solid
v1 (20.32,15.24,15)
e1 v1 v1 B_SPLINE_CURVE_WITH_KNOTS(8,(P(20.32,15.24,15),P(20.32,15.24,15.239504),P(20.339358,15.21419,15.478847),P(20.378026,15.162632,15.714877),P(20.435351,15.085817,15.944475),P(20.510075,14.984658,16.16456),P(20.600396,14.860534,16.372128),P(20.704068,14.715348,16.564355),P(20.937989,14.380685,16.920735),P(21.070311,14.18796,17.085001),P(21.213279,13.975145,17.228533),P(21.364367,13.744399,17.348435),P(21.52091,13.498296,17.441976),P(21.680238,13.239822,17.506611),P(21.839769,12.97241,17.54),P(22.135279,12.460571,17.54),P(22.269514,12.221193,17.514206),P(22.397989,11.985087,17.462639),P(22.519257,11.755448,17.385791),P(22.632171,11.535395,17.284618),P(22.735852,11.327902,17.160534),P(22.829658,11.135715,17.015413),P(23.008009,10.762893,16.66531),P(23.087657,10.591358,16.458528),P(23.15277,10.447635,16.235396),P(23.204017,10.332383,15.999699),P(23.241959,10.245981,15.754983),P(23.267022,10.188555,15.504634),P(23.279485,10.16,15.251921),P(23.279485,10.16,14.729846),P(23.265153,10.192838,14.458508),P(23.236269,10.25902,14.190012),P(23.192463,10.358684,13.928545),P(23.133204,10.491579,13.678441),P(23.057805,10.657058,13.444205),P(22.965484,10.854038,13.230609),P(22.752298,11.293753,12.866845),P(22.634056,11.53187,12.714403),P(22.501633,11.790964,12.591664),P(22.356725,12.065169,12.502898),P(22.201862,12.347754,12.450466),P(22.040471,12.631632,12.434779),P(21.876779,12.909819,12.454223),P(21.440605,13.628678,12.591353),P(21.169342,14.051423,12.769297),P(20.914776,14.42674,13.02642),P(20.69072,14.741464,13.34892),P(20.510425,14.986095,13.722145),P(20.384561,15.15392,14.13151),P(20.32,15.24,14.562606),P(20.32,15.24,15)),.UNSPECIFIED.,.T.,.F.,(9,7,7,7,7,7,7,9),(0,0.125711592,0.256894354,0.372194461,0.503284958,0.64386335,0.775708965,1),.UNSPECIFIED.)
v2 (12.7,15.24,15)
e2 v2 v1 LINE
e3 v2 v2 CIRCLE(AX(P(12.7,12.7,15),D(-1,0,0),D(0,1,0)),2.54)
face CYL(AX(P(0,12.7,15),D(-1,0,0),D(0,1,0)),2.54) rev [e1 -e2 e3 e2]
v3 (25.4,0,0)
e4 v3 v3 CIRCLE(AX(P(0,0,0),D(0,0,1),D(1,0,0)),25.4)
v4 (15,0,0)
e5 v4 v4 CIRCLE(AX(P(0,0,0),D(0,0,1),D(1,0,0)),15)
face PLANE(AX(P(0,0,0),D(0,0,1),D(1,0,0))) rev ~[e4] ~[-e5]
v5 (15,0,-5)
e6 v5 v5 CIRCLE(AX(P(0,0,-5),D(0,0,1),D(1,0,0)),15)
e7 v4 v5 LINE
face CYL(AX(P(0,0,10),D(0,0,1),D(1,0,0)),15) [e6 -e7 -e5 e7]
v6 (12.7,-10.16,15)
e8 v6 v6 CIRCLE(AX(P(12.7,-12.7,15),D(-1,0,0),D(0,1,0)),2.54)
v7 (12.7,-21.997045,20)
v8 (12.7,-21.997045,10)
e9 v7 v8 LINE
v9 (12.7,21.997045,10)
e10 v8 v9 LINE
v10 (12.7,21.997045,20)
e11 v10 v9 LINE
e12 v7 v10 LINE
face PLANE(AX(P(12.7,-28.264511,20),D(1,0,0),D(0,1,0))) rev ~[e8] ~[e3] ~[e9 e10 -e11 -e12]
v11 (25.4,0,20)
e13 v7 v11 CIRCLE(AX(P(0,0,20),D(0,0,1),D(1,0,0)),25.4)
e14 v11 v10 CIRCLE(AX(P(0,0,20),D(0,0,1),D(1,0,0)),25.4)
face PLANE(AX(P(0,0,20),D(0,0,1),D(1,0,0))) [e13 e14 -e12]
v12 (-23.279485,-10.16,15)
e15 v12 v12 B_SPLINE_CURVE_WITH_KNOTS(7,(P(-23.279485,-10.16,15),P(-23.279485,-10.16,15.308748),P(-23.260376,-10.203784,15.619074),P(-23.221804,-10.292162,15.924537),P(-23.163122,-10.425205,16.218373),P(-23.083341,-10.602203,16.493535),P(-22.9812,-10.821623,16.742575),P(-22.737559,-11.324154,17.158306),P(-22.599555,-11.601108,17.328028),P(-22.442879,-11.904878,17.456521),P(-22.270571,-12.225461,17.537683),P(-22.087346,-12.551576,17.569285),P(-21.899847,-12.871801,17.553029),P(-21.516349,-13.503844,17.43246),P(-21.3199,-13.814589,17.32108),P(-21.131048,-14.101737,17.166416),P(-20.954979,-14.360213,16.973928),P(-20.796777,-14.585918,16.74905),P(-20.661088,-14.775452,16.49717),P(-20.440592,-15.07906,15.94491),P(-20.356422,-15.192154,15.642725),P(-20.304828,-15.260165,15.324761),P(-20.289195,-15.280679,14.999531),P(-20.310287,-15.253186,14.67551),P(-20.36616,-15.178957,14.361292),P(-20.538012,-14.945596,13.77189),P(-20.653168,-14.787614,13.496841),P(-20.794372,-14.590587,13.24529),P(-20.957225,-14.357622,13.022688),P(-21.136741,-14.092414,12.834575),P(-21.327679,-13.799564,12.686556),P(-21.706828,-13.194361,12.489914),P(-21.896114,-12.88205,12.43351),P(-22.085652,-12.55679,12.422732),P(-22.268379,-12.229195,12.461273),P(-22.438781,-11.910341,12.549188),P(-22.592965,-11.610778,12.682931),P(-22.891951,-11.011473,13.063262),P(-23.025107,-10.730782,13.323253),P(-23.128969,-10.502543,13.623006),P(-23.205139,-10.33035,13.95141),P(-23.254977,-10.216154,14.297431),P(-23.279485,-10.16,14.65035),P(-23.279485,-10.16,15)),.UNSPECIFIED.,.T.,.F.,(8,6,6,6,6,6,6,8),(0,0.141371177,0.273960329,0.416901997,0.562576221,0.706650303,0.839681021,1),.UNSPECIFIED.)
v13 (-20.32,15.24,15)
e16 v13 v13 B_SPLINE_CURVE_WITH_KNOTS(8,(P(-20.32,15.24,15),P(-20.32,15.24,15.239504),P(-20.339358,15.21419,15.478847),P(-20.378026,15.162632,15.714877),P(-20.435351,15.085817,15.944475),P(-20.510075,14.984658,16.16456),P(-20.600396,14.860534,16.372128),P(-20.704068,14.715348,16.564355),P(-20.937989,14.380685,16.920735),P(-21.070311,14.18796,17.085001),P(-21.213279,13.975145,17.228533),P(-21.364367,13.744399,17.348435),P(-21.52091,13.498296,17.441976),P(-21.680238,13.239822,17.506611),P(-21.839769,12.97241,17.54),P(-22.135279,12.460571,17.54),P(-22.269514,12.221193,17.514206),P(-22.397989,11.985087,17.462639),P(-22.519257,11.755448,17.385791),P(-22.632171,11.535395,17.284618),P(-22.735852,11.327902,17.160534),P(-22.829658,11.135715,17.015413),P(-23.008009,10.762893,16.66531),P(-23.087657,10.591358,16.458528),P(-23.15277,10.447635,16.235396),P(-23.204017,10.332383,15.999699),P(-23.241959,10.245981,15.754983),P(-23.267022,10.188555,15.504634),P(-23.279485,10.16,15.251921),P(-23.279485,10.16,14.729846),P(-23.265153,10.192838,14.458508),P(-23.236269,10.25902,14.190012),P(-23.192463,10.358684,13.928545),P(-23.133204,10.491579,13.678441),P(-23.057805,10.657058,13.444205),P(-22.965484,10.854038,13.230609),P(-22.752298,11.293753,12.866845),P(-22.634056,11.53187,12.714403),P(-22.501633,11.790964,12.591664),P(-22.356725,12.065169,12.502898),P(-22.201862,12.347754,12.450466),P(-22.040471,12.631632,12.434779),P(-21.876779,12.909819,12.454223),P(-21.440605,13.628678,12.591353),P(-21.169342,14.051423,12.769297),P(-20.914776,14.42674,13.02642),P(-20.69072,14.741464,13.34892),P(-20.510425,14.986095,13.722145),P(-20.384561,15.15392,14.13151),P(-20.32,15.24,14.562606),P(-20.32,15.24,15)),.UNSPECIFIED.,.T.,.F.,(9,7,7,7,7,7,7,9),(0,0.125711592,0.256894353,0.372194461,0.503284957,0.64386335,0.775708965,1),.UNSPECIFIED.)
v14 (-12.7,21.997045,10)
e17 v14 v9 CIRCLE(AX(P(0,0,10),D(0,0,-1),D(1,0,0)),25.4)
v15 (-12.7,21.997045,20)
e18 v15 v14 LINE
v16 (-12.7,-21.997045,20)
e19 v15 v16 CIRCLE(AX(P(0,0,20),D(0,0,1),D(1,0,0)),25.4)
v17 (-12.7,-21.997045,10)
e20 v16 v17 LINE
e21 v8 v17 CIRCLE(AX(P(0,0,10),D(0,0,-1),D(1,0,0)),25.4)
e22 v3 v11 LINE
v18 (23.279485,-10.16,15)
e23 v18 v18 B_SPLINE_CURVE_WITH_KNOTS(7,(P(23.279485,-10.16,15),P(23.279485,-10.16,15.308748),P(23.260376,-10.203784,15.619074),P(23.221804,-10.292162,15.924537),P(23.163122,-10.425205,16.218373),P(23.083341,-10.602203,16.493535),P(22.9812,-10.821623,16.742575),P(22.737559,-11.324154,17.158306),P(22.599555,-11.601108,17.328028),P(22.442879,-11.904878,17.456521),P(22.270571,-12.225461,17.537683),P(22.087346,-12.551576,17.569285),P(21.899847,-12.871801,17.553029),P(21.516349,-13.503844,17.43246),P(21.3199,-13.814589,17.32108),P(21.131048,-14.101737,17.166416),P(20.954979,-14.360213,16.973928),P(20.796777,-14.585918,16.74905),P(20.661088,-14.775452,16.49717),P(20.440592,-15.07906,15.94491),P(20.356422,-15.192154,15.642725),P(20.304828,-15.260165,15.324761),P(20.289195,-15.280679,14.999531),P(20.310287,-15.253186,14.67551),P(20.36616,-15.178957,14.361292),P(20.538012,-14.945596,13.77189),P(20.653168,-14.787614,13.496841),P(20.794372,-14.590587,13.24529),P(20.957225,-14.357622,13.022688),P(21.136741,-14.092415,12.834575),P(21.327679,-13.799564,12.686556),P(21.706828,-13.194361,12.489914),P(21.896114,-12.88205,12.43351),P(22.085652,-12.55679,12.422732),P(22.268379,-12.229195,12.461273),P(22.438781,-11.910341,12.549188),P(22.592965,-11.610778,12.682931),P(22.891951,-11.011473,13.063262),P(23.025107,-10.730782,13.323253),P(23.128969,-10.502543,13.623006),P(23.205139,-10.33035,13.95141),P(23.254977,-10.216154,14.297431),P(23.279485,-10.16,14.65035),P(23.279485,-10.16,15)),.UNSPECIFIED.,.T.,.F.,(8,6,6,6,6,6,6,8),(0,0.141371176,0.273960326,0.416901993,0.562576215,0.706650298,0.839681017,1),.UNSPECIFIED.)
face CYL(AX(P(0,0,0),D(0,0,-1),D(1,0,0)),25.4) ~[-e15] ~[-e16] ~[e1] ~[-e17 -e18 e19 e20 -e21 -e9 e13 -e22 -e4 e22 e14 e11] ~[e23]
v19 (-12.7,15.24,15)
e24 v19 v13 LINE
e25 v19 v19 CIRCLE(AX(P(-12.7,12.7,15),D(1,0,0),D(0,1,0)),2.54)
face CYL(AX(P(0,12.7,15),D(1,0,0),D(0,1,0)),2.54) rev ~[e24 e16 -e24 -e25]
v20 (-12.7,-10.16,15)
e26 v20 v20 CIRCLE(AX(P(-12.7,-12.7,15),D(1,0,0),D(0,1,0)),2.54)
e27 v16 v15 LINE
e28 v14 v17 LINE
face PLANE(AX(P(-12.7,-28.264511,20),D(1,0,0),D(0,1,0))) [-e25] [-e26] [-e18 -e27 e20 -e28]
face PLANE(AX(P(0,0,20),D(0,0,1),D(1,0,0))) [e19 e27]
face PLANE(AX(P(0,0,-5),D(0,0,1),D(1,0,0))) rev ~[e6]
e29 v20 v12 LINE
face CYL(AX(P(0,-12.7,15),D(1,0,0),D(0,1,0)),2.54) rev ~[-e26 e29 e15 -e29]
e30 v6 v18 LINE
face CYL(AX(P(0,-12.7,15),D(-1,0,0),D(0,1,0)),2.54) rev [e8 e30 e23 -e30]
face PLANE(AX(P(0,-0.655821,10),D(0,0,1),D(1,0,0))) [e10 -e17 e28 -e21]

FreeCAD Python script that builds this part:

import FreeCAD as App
import Part
import Sketcher
from FreeCAD import Vector

doc = App.newDocument("Part")
body = doc.addObject("PartDesign::Body", "Body")

# Sketch on XY plane
sketch1 = doc.addObject("Sketcher::SketchObject", "Sketch")
body.addObject(sketch1)
sketch1.AttachmentSupport = (doc.XY_Plane, [""])
sketch1.MapMode = "FlatFace"
sketch1.addGeometry(Part.Circle(Vector(0, 0, 0), Vector(0, 0, 1), 25), False)
sketch1.addConstraint([
    Sketcher.Constraint("Coincident", 0, 3, -1, 1),
    Sketcher.Constraint("Diameter", 0, 50.8),
])
pad1 = doc.addObject("PartDesign::Pad", "Pad")
body.addObject(pad1)
pad1.Profile = sketch1
pad1.Length = 20

# Sketch on XY plane
sketch2 = doc.addObject("Sketcher::SketchObject", "Sketch001")
body.addObject(sketch2)
sketch2.AttachmentSupport = (doc.XY_Plane, [""])
sketch2.MapMode = "FlatFace"
sketch2.AttachmentOffset = App.Placement(Vector(0, 0, 20), App.Rotation())
sketch2.addGeometry([
    Part.LineSegment(Vector(-13, 27, 0), Vector(-13, -28, 0)),
    Part.LineSegment(Vector(-13, -28, 0), Vector(13, -28, 0)),
    Part.LineSegment(Vector(13, -28, 0), Vector(13, 27, 0)),
    Part.LineSegment(Vector(13, 27, 0), Vector(-13, 27, 0)),
], False)
sketch2.addConstraint([
    Sketcher.Constraint("Coincident", 0, 2, 1, 1),
    Sketcher.Constraint("Coincident", 1, 2, 2, 1),
    Sketcher.Constraint("Coincident", 2, 2, 3, 1),
    Sketcher.Constraint("Coincident", 3, 2, 0, 1),
    Sketcher.Constraint("Vertical", 0),
    Sketcher.Constraint("Horizontal", 1),
    Sketcher.Constraint("Vertical", 2),
    Sketcher.Constraint("Horizontal", 3),
    Sketcher.Constraint("DistanceX", 1, 1, 1, 2, 25.4),
    Sketcher.Constraint("DistanceX", 0, 2, -1, 1, 12.7),
    Sketcher.Constraint("DistanceY", 0, 2, 0, 1, 55.217381),
    Sketcher.Constraint("DistanceY", 0, 2, -1, 1, 28.264511),
])
pocket1 = doc.addObject("PartDesign::Pocket", "Pocket")
body.addObject(pocket1)
pocket1.Profile = sketch2
pocket1.Length = 10

# Sketch on YZ plane
sketch3 = doc.addObject("Sketcher::SketchObject", "Sketch002")
body.addObject(sketch3)
sketch3.AttachmentSupport = (doc.YZ_Plane, [""])
sketch3.MapMode = "FlatFace"
sketch3.addGeometry([
    Part.Circle(Vector(-12.7, 15, 0), Vector(0, 0, 1), 2.5),
    Part.Circle(Vector(12.7, 15, 0), Vector(0, 0, 1), 2.5),
], False)
sketch3.addConstraint([
    Sketcher.Constraint("Equal", 0, 1),
    Sketcher.Constraint("Symmetric", 0, 3, 1, 3, -2),
    Sketcher.Constraint("Diameter", 0, 5.08),
    Sketcher.Constraint("DistanceY", -1, 1, 0, 3, 15.0),
    Sketcher.Constraint("DistanceX", 0, 3, -1, 1, 12.7),
])
pocket2 = doc.addObject("PartDesign::Pocket", "Pocket001")
body.addObject(pocket2)
pocket2.Profile = sketch3
pocket2.Type = "ThroughAll"
pocket2.Midplane = True

# Sketch on XY plane
sketch4 = doc.addObject("Sketcher::SketchObject", "Sketch003")
body.addObject(sketch4)
sketch4.AttachmentSupport = (doc.XY_Plane, [""])
sketch4.MapMode = "FlatFace"
sketch4.AttachmentOffset = App.Placement(Vector(0, 0, 10), App.Rotation())
sketch4.addGeometry(Part.Circle(Vector(0, 0, 0), Vector(0, 0, 1), 15), False)
sketch4.addConstraint([
    Sketcher.Constraint("Coincident", 0, 3, -1, 1),
    Sketcher.Constraint("Diameter", 0, 30.0),
])
pad2 = doc.addObject("PartDesign::Pad", "Pad001")
body.addObject(pad2)
pad2.Profile = sketch4
pad2.Length = 15
pad2.Reversed = True

doc.recompute()
